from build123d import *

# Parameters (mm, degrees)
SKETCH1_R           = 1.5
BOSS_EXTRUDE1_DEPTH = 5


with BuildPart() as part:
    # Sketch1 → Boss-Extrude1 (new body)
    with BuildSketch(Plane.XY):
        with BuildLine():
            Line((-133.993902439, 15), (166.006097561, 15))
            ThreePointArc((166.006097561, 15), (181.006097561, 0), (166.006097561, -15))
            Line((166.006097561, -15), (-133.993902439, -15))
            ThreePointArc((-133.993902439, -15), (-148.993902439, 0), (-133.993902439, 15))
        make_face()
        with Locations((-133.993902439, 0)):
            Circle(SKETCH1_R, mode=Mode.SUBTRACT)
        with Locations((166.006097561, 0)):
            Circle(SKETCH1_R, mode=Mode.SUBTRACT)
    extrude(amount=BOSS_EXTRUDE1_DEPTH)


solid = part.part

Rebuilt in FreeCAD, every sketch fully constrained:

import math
import FreeCAD as App
import Part
import Sketcher
from FreeCAD import Vector

doc = App.newDocument("Part")
body = doc.addObject("PartDesign::Body", "Body")

# Sketch on XY plane
sketch1 = body.newObject("Sketcher::SketchObject", "Sketch")
sketch1.AttachmentSupport = (doc.getObject("XY_Plane"), [""])
sketch1.MapMode = "FlatFace"
sketch1.addGeometry(Part.LineSegment(Vector(166.006098, 15, 0), Vector(-133.993902, 15, 0)), False)
sketch1.addGeometry(Part.ArcOfCircle(Part.Circle(Vector(-133.993902, 0, 0), Vector(0, 0, 1), 15), math.radians(90), math.radians(270)), False)
sketch1.addGeometry(Part.LineSegment(Vector(-133.993902, -15, 0), Vector(166.006098, -15, 0)), False)
sketch1.addGeometry(Part.ArcOfCircle(Part.Circle(Vector(166.006098, 0, 0), Vector(0, 0, 1), 15), math.radians(-90), math.radians(90)), False)
sketch1.addGeometry(Part.Circle(Vector(166.006098, 0, 0), Vector(0, 0, 1), 1.5), False)
sketch1.addGeometry(Part.Circle(Vector(-133.993902, 0, 0), Vector(0, 0, 1), 1.5), False)
sketch1.addConstraint(Sketcher.Constraint("Tangent", 0, 2, 1, 1))
sketch1.addConstraint(Sketcher.Constraint("Tangent", 1, 2, 2, 1))
sketch1.addConstraint(Sketcher.Constraint("Tangent", 2, 2, 3, 1))
sketch1.addConstraint(Sketcher.Constraint("Tangent", 3, 2, 0, 1))
sketch1.addConstraint(Sketcher.Constraint("Horizontal", 0))
sketch1.addConstraint(Sketcher.Constraint("Horizontal", 2))
sketch1.addConstraint(Sketcher.Constraint("Coincident", 4, 3, 3, 3))
sketch1.addConstraint(Sketcher.Constraint("Coincident", 5, 3, 1, 3))
sketch1.addConstraint(Sketcher.Constraint("Equal", 4, 5))
sketch1.addConstraint(Sketcher.Constraint("PointOnObject", 1, 3, -1))
sketch1.addConstraint(Sketcher.Constraint("Diameter", 4, 3.0))
sketch1.addConstraint(Sketcher.Constraint("Radius", 1, 15.0))
sketch1.addConstraint(Sketcher.Constraint("DistanceX", 0, 2, 0, 1, 300.0))
sketch1.addConstraint(Sketcher.Constraint("DistanceX", 1, 3, -1, 1, 133.993902))
pad1 = body.newObject("PartDesign::Pad", "Pad")
pad1.Profile = sketch1
pad1.Length = 5

doc.recompute()
